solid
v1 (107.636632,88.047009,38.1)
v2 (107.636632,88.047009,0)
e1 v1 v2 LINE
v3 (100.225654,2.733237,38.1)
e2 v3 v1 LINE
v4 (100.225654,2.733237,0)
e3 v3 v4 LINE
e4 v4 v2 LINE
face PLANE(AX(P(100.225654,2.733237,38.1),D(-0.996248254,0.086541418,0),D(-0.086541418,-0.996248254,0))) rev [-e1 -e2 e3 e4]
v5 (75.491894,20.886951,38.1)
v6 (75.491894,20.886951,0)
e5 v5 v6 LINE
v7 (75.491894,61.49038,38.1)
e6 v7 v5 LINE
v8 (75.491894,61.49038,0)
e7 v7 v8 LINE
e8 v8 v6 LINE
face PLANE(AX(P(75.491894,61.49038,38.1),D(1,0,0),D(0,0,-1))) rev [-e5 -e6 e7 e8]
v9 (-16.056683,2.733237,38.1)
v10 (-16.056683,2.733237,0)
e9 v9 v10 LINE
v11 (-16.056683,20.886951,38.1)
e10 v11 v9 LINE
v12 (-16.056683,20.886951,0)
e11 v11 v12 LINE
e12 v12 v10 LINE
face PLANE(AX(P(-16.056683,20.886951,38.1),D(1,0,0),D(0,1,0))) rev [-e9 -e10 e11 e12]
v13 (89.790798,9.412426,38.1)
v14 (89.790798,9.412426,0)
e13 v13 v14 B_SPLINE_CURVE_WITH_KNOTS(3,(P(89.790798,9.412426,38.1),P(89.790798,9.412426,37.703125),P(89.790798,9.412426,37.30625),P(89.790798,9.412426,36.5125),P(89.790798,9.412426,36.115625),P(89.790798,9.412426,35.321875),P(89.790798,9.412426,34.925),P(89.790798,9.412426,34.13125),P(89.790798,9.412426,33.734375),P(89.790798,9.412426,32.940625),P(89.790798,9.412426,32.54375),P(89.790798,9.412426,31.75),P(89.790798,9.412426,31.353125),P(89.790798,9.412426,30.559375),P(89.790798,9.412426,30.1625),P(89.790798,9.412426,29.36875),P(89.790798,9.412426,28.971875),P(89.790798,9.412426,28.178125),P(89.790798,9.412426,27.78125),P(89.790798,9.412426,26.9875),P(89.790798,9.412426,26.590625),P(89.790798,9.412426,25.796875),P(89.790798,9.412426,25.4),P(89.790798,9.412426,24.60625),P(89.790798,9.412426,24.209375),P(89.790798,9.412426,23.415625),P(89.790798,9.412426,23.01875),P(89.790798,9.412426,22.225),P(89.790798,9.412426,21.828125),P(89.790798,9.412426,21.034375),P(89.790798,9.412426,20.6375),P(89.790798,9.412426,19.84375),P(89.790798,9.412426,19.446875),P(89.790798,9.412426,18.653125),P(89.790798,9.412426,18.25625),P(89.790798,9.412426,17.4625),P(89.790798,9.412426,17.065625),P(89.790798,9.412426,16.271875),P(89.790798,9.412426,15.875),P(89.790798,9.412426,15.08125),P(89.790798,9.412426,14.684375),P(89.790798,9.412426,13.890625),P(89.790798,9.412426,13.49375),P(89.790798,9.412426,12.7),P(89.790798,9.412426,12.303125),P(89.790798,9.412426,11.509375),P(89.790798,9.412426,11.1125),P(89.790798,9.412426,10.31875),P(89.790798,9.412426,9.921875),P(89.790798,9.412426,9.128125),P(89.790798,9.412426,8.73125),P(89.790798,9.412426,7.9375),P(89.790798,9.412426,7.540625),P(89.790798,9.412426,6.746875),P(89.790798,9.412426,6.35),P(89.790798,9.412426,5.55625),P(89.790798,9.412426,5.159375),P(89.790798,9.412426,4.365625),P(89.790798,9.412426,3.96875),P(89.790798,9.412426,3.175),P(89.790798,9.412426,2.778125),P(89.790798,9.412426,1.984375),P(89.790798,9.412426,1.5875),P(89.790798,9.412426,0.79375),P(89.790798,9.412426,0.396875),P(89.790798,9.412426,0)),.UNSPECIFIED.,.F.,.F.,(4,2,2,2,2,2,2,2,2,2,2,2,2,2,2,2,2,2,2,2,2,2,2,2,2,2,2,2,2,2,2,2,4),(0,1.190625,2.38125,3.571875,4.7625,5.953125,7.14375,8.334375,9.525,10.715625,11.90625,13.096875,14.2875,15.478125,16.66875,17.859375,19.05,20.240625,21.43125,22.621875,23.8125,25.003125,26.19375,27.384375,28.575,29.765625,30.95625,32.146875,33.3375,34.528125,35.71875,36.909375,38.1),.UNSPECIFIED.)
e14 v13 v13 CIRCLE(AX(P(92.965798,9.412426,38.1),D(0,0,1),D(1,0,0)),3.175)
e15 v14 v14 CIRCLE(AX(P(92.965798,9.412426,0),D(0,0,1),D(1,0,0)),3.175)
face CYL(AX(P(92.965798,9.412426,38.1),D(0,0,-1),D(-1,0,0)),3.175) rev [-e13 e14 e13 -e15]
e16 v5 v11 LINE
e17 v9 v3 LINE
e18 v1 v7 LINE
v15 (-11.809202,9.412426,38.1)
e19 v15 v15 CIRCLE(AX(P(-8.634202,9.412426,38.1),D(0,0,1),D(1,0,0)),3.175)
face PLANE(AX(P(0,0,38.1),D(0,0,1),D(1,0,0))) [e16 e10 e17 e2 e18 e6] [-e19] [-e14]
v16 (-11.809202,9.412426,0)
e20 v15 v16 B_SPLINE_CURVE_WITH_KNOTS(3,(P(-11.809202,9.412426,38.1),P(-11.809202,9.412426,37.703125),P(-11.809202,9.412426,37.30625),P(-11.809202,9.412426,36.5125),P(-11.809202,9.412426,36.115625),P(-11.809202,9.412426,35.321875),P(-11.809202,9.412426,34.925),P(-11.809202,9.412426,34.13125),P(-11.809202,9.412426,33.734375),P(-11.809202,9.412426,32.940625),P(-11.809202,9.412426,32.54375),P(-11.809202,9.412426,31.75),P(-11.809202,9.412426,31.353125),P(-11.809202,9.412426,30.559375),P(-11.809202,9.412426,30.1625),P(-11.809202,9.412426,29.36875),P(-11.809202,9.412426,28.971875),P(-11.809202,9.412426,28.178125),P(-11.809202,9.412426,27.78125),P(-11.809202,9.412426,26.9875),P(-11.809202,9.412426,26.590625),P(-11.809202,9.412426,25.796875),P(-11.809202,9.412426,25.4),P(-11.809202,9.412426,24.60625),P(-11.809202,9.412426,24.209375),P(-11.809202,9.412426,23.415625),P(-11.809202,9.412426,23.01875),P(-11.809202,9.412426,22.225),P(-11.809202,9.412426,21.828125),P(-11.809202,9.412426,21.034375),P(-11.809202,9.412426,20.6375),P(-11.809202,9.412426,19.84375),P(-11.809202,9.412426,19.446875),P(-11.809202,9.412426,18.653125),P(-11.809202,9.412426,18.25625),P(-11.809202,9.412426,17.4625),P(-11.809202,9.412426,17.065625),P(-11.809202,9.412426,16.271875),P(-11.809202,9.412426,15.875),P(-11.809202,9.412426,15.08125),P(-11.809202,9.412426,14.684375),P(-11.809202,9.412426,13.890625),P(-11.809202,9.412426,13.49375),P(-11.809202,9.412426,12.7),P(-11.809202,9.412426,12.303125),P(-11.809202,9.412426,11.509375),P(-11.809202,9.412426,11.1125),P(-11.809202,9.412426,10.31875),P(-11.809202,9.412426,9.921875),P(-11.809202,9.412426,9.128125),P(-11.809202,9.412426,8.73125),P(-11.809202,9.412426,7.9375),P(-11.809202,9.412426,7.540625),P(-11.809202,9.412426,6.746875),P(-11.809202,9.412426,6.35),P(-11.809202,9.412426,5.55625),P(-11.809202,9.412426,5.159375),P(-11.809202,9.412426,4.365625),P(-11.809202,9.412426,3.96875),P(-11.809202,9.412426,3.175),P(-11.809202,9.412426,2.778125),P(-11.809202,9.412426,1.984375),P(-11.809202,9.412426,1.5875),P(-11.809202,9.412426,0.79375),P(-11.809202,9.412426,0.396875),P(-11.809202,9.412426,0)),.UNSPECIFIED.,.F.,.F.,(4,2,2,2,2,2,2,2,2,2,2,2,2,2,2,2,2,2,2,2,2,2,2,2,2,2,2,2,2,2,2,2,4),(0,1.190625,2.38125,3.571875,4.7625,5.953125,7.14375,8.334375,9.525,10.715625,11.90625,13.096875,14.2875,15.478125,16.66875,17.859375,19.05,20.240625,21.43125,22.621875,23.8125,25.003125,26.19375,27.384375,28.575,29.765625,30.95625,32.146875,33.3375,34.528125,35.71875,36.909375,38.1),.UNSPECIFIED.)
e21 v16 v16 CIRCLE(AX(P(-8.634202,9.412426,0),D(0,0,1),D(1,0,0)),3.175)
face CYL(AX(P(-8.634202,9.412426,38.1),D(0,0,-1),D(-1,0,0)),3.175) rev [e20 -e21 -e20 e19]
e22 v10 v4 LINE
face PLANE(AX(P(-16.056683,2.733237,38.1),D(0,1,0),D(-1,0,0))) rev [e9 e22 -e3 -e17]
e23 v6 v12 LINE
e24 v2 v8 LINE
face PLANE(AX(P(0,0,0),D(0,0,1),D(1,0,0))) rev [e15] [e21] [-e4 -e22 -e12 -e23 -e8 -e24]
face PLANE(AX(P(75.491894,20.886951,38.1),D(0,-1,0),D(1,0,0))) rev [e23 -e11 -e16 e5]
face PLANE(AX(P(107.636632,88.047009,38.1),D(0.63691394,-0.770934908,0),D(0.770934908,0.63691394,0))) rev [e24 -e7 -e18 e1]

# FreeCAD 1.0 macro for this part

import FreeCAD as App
import Part
import Sketcher
Q = App.Units.Quantity


def add_polygon(sketch, points):
    """Adds a closed chain of lines whose ends are joined by coincident constraints."""
    first, n = sketch.GeometryCount, len(points)
    for a, b in zip(points, points[1:] + points[:1]):
        sketch.addGeometry(Part.LineSegment(App.Vector(*a, 0), App.Vector(*b, 0)), False)
    for i in range(n):
        sketch.addConstraint(Sketcher.Constraint("Coincident", first + i, 2, first + (i + 1) % n, 1))

doc = App.newDocument("Part")
params = doc.addObject("Spreadsheet::Sheet", "Params")
for row, (alias, value) in enumerate([
    ("sketch1_diameter", "0.25 in"),
    ("pad1_length", "1.5 in"),
], start=1):
    params.set(f"A{row}", alias)
    params.set(f"B{row}", "=" + value)
    params.setAlias(f"B{row}", alias)

body = doc.addObject("PartDesign::Body", "Body")

sketch1 = body.newObject("Sketcher::SketchObject", "Sketch")
sketch1.AttachmentSupport = (doc.getObject("XY_Plane"), [""])
sketch1.MapMode = "FlatFace"
add_polygon(sketch1, [(-16.056683, 2.733237), (100.225654, 2.733237), (107.636632, 88.047009), (75.491894, 61.49038), (75.491894, 20.886951), (-16.056683, 20.886951)])
sketch1.addGeometry(Part.Circle(App.Vector(-8.634202, 9.412426, 0), App.Vector(0, 0, 1), 3.175), False)
sketch1.addGeometry(Part.Circle(App.Vector(92.965798, 9.412426, 0), App.Vector(0, 0, 1), 3.175), False)
sketch1.addConstraint(Sketcher.Constraint("Horizontal", 0))
sketch1.addConstraint(Sketcher.Constraint("Vertical", 3))
sketch1.addConstraint(Sketcher.Constraint("Horizontal", 4))
sketch1.addConstraint(Sketcher.Constraint("Vertical", 5))
sketch1.addConstraint(Sketcher.Constraint("Equal", 6, 7))
sketch1.addConstraint(Sketcher.Constraint("Horizontal", 6, 3, 7, 3))
sketch1.addConstraint(Sketcher.Constraint("Diameter", 6, Q("0.25 in")))
sketch1.addConstraint(Sketcher.Constraint("DistanceX", 6, 3, 7, 3, Q("4 in")))
sketch1.addConstraint(Sketcher.Constraint("DistanceY", 3, 2, 3, 1, 40.603429))
sketch1.addConstraint(Sketcher.Constraint("Distance", 2, 41.695788))
sketch1.addConstraint(Sketcher.Constraint("DistanceX", 0, 1, 0, 2, 116.282337))
sketch1.addConstraint(Sketcher.Constraint("DistanceX", 4, 2, 4, 1, 91.548577))
sketch1.addConstraint(Sketcher.Constraint("DistanceY", 5, 2, 5, 1, 18.153714))
sketch1.addConstraint(Sketcher.Constraint("DistanceY", -1, 1, 1, 2, 88.047009))
sketch1.addConstraint(Sketcher.Constraint("DistanceY", -1, 1, 2, 2, 61.49038))
sketch1.addConstraint(Sketcher.Constraint("DistanceY", 0, 2, 7, 3, 6.679189))
sketch1.addConstraint(Sketcher.Constraint("DistanceX", 4, 2, 6, 3, 7.422481))
sketch1.addConstraint(Sketcher.Constraint("DistanceX", 6, 3, -1, 1, 8.634202))
sketch1.setExpression("Constraints[12]", "Params.sketch1_diameter")
pad1 = body.newObject("PartDesign::Pad", "Pad")
pad1.Profile = sketch1
pad1.setExpression("Length", "Params.pad1_length")

doc.recompute()
